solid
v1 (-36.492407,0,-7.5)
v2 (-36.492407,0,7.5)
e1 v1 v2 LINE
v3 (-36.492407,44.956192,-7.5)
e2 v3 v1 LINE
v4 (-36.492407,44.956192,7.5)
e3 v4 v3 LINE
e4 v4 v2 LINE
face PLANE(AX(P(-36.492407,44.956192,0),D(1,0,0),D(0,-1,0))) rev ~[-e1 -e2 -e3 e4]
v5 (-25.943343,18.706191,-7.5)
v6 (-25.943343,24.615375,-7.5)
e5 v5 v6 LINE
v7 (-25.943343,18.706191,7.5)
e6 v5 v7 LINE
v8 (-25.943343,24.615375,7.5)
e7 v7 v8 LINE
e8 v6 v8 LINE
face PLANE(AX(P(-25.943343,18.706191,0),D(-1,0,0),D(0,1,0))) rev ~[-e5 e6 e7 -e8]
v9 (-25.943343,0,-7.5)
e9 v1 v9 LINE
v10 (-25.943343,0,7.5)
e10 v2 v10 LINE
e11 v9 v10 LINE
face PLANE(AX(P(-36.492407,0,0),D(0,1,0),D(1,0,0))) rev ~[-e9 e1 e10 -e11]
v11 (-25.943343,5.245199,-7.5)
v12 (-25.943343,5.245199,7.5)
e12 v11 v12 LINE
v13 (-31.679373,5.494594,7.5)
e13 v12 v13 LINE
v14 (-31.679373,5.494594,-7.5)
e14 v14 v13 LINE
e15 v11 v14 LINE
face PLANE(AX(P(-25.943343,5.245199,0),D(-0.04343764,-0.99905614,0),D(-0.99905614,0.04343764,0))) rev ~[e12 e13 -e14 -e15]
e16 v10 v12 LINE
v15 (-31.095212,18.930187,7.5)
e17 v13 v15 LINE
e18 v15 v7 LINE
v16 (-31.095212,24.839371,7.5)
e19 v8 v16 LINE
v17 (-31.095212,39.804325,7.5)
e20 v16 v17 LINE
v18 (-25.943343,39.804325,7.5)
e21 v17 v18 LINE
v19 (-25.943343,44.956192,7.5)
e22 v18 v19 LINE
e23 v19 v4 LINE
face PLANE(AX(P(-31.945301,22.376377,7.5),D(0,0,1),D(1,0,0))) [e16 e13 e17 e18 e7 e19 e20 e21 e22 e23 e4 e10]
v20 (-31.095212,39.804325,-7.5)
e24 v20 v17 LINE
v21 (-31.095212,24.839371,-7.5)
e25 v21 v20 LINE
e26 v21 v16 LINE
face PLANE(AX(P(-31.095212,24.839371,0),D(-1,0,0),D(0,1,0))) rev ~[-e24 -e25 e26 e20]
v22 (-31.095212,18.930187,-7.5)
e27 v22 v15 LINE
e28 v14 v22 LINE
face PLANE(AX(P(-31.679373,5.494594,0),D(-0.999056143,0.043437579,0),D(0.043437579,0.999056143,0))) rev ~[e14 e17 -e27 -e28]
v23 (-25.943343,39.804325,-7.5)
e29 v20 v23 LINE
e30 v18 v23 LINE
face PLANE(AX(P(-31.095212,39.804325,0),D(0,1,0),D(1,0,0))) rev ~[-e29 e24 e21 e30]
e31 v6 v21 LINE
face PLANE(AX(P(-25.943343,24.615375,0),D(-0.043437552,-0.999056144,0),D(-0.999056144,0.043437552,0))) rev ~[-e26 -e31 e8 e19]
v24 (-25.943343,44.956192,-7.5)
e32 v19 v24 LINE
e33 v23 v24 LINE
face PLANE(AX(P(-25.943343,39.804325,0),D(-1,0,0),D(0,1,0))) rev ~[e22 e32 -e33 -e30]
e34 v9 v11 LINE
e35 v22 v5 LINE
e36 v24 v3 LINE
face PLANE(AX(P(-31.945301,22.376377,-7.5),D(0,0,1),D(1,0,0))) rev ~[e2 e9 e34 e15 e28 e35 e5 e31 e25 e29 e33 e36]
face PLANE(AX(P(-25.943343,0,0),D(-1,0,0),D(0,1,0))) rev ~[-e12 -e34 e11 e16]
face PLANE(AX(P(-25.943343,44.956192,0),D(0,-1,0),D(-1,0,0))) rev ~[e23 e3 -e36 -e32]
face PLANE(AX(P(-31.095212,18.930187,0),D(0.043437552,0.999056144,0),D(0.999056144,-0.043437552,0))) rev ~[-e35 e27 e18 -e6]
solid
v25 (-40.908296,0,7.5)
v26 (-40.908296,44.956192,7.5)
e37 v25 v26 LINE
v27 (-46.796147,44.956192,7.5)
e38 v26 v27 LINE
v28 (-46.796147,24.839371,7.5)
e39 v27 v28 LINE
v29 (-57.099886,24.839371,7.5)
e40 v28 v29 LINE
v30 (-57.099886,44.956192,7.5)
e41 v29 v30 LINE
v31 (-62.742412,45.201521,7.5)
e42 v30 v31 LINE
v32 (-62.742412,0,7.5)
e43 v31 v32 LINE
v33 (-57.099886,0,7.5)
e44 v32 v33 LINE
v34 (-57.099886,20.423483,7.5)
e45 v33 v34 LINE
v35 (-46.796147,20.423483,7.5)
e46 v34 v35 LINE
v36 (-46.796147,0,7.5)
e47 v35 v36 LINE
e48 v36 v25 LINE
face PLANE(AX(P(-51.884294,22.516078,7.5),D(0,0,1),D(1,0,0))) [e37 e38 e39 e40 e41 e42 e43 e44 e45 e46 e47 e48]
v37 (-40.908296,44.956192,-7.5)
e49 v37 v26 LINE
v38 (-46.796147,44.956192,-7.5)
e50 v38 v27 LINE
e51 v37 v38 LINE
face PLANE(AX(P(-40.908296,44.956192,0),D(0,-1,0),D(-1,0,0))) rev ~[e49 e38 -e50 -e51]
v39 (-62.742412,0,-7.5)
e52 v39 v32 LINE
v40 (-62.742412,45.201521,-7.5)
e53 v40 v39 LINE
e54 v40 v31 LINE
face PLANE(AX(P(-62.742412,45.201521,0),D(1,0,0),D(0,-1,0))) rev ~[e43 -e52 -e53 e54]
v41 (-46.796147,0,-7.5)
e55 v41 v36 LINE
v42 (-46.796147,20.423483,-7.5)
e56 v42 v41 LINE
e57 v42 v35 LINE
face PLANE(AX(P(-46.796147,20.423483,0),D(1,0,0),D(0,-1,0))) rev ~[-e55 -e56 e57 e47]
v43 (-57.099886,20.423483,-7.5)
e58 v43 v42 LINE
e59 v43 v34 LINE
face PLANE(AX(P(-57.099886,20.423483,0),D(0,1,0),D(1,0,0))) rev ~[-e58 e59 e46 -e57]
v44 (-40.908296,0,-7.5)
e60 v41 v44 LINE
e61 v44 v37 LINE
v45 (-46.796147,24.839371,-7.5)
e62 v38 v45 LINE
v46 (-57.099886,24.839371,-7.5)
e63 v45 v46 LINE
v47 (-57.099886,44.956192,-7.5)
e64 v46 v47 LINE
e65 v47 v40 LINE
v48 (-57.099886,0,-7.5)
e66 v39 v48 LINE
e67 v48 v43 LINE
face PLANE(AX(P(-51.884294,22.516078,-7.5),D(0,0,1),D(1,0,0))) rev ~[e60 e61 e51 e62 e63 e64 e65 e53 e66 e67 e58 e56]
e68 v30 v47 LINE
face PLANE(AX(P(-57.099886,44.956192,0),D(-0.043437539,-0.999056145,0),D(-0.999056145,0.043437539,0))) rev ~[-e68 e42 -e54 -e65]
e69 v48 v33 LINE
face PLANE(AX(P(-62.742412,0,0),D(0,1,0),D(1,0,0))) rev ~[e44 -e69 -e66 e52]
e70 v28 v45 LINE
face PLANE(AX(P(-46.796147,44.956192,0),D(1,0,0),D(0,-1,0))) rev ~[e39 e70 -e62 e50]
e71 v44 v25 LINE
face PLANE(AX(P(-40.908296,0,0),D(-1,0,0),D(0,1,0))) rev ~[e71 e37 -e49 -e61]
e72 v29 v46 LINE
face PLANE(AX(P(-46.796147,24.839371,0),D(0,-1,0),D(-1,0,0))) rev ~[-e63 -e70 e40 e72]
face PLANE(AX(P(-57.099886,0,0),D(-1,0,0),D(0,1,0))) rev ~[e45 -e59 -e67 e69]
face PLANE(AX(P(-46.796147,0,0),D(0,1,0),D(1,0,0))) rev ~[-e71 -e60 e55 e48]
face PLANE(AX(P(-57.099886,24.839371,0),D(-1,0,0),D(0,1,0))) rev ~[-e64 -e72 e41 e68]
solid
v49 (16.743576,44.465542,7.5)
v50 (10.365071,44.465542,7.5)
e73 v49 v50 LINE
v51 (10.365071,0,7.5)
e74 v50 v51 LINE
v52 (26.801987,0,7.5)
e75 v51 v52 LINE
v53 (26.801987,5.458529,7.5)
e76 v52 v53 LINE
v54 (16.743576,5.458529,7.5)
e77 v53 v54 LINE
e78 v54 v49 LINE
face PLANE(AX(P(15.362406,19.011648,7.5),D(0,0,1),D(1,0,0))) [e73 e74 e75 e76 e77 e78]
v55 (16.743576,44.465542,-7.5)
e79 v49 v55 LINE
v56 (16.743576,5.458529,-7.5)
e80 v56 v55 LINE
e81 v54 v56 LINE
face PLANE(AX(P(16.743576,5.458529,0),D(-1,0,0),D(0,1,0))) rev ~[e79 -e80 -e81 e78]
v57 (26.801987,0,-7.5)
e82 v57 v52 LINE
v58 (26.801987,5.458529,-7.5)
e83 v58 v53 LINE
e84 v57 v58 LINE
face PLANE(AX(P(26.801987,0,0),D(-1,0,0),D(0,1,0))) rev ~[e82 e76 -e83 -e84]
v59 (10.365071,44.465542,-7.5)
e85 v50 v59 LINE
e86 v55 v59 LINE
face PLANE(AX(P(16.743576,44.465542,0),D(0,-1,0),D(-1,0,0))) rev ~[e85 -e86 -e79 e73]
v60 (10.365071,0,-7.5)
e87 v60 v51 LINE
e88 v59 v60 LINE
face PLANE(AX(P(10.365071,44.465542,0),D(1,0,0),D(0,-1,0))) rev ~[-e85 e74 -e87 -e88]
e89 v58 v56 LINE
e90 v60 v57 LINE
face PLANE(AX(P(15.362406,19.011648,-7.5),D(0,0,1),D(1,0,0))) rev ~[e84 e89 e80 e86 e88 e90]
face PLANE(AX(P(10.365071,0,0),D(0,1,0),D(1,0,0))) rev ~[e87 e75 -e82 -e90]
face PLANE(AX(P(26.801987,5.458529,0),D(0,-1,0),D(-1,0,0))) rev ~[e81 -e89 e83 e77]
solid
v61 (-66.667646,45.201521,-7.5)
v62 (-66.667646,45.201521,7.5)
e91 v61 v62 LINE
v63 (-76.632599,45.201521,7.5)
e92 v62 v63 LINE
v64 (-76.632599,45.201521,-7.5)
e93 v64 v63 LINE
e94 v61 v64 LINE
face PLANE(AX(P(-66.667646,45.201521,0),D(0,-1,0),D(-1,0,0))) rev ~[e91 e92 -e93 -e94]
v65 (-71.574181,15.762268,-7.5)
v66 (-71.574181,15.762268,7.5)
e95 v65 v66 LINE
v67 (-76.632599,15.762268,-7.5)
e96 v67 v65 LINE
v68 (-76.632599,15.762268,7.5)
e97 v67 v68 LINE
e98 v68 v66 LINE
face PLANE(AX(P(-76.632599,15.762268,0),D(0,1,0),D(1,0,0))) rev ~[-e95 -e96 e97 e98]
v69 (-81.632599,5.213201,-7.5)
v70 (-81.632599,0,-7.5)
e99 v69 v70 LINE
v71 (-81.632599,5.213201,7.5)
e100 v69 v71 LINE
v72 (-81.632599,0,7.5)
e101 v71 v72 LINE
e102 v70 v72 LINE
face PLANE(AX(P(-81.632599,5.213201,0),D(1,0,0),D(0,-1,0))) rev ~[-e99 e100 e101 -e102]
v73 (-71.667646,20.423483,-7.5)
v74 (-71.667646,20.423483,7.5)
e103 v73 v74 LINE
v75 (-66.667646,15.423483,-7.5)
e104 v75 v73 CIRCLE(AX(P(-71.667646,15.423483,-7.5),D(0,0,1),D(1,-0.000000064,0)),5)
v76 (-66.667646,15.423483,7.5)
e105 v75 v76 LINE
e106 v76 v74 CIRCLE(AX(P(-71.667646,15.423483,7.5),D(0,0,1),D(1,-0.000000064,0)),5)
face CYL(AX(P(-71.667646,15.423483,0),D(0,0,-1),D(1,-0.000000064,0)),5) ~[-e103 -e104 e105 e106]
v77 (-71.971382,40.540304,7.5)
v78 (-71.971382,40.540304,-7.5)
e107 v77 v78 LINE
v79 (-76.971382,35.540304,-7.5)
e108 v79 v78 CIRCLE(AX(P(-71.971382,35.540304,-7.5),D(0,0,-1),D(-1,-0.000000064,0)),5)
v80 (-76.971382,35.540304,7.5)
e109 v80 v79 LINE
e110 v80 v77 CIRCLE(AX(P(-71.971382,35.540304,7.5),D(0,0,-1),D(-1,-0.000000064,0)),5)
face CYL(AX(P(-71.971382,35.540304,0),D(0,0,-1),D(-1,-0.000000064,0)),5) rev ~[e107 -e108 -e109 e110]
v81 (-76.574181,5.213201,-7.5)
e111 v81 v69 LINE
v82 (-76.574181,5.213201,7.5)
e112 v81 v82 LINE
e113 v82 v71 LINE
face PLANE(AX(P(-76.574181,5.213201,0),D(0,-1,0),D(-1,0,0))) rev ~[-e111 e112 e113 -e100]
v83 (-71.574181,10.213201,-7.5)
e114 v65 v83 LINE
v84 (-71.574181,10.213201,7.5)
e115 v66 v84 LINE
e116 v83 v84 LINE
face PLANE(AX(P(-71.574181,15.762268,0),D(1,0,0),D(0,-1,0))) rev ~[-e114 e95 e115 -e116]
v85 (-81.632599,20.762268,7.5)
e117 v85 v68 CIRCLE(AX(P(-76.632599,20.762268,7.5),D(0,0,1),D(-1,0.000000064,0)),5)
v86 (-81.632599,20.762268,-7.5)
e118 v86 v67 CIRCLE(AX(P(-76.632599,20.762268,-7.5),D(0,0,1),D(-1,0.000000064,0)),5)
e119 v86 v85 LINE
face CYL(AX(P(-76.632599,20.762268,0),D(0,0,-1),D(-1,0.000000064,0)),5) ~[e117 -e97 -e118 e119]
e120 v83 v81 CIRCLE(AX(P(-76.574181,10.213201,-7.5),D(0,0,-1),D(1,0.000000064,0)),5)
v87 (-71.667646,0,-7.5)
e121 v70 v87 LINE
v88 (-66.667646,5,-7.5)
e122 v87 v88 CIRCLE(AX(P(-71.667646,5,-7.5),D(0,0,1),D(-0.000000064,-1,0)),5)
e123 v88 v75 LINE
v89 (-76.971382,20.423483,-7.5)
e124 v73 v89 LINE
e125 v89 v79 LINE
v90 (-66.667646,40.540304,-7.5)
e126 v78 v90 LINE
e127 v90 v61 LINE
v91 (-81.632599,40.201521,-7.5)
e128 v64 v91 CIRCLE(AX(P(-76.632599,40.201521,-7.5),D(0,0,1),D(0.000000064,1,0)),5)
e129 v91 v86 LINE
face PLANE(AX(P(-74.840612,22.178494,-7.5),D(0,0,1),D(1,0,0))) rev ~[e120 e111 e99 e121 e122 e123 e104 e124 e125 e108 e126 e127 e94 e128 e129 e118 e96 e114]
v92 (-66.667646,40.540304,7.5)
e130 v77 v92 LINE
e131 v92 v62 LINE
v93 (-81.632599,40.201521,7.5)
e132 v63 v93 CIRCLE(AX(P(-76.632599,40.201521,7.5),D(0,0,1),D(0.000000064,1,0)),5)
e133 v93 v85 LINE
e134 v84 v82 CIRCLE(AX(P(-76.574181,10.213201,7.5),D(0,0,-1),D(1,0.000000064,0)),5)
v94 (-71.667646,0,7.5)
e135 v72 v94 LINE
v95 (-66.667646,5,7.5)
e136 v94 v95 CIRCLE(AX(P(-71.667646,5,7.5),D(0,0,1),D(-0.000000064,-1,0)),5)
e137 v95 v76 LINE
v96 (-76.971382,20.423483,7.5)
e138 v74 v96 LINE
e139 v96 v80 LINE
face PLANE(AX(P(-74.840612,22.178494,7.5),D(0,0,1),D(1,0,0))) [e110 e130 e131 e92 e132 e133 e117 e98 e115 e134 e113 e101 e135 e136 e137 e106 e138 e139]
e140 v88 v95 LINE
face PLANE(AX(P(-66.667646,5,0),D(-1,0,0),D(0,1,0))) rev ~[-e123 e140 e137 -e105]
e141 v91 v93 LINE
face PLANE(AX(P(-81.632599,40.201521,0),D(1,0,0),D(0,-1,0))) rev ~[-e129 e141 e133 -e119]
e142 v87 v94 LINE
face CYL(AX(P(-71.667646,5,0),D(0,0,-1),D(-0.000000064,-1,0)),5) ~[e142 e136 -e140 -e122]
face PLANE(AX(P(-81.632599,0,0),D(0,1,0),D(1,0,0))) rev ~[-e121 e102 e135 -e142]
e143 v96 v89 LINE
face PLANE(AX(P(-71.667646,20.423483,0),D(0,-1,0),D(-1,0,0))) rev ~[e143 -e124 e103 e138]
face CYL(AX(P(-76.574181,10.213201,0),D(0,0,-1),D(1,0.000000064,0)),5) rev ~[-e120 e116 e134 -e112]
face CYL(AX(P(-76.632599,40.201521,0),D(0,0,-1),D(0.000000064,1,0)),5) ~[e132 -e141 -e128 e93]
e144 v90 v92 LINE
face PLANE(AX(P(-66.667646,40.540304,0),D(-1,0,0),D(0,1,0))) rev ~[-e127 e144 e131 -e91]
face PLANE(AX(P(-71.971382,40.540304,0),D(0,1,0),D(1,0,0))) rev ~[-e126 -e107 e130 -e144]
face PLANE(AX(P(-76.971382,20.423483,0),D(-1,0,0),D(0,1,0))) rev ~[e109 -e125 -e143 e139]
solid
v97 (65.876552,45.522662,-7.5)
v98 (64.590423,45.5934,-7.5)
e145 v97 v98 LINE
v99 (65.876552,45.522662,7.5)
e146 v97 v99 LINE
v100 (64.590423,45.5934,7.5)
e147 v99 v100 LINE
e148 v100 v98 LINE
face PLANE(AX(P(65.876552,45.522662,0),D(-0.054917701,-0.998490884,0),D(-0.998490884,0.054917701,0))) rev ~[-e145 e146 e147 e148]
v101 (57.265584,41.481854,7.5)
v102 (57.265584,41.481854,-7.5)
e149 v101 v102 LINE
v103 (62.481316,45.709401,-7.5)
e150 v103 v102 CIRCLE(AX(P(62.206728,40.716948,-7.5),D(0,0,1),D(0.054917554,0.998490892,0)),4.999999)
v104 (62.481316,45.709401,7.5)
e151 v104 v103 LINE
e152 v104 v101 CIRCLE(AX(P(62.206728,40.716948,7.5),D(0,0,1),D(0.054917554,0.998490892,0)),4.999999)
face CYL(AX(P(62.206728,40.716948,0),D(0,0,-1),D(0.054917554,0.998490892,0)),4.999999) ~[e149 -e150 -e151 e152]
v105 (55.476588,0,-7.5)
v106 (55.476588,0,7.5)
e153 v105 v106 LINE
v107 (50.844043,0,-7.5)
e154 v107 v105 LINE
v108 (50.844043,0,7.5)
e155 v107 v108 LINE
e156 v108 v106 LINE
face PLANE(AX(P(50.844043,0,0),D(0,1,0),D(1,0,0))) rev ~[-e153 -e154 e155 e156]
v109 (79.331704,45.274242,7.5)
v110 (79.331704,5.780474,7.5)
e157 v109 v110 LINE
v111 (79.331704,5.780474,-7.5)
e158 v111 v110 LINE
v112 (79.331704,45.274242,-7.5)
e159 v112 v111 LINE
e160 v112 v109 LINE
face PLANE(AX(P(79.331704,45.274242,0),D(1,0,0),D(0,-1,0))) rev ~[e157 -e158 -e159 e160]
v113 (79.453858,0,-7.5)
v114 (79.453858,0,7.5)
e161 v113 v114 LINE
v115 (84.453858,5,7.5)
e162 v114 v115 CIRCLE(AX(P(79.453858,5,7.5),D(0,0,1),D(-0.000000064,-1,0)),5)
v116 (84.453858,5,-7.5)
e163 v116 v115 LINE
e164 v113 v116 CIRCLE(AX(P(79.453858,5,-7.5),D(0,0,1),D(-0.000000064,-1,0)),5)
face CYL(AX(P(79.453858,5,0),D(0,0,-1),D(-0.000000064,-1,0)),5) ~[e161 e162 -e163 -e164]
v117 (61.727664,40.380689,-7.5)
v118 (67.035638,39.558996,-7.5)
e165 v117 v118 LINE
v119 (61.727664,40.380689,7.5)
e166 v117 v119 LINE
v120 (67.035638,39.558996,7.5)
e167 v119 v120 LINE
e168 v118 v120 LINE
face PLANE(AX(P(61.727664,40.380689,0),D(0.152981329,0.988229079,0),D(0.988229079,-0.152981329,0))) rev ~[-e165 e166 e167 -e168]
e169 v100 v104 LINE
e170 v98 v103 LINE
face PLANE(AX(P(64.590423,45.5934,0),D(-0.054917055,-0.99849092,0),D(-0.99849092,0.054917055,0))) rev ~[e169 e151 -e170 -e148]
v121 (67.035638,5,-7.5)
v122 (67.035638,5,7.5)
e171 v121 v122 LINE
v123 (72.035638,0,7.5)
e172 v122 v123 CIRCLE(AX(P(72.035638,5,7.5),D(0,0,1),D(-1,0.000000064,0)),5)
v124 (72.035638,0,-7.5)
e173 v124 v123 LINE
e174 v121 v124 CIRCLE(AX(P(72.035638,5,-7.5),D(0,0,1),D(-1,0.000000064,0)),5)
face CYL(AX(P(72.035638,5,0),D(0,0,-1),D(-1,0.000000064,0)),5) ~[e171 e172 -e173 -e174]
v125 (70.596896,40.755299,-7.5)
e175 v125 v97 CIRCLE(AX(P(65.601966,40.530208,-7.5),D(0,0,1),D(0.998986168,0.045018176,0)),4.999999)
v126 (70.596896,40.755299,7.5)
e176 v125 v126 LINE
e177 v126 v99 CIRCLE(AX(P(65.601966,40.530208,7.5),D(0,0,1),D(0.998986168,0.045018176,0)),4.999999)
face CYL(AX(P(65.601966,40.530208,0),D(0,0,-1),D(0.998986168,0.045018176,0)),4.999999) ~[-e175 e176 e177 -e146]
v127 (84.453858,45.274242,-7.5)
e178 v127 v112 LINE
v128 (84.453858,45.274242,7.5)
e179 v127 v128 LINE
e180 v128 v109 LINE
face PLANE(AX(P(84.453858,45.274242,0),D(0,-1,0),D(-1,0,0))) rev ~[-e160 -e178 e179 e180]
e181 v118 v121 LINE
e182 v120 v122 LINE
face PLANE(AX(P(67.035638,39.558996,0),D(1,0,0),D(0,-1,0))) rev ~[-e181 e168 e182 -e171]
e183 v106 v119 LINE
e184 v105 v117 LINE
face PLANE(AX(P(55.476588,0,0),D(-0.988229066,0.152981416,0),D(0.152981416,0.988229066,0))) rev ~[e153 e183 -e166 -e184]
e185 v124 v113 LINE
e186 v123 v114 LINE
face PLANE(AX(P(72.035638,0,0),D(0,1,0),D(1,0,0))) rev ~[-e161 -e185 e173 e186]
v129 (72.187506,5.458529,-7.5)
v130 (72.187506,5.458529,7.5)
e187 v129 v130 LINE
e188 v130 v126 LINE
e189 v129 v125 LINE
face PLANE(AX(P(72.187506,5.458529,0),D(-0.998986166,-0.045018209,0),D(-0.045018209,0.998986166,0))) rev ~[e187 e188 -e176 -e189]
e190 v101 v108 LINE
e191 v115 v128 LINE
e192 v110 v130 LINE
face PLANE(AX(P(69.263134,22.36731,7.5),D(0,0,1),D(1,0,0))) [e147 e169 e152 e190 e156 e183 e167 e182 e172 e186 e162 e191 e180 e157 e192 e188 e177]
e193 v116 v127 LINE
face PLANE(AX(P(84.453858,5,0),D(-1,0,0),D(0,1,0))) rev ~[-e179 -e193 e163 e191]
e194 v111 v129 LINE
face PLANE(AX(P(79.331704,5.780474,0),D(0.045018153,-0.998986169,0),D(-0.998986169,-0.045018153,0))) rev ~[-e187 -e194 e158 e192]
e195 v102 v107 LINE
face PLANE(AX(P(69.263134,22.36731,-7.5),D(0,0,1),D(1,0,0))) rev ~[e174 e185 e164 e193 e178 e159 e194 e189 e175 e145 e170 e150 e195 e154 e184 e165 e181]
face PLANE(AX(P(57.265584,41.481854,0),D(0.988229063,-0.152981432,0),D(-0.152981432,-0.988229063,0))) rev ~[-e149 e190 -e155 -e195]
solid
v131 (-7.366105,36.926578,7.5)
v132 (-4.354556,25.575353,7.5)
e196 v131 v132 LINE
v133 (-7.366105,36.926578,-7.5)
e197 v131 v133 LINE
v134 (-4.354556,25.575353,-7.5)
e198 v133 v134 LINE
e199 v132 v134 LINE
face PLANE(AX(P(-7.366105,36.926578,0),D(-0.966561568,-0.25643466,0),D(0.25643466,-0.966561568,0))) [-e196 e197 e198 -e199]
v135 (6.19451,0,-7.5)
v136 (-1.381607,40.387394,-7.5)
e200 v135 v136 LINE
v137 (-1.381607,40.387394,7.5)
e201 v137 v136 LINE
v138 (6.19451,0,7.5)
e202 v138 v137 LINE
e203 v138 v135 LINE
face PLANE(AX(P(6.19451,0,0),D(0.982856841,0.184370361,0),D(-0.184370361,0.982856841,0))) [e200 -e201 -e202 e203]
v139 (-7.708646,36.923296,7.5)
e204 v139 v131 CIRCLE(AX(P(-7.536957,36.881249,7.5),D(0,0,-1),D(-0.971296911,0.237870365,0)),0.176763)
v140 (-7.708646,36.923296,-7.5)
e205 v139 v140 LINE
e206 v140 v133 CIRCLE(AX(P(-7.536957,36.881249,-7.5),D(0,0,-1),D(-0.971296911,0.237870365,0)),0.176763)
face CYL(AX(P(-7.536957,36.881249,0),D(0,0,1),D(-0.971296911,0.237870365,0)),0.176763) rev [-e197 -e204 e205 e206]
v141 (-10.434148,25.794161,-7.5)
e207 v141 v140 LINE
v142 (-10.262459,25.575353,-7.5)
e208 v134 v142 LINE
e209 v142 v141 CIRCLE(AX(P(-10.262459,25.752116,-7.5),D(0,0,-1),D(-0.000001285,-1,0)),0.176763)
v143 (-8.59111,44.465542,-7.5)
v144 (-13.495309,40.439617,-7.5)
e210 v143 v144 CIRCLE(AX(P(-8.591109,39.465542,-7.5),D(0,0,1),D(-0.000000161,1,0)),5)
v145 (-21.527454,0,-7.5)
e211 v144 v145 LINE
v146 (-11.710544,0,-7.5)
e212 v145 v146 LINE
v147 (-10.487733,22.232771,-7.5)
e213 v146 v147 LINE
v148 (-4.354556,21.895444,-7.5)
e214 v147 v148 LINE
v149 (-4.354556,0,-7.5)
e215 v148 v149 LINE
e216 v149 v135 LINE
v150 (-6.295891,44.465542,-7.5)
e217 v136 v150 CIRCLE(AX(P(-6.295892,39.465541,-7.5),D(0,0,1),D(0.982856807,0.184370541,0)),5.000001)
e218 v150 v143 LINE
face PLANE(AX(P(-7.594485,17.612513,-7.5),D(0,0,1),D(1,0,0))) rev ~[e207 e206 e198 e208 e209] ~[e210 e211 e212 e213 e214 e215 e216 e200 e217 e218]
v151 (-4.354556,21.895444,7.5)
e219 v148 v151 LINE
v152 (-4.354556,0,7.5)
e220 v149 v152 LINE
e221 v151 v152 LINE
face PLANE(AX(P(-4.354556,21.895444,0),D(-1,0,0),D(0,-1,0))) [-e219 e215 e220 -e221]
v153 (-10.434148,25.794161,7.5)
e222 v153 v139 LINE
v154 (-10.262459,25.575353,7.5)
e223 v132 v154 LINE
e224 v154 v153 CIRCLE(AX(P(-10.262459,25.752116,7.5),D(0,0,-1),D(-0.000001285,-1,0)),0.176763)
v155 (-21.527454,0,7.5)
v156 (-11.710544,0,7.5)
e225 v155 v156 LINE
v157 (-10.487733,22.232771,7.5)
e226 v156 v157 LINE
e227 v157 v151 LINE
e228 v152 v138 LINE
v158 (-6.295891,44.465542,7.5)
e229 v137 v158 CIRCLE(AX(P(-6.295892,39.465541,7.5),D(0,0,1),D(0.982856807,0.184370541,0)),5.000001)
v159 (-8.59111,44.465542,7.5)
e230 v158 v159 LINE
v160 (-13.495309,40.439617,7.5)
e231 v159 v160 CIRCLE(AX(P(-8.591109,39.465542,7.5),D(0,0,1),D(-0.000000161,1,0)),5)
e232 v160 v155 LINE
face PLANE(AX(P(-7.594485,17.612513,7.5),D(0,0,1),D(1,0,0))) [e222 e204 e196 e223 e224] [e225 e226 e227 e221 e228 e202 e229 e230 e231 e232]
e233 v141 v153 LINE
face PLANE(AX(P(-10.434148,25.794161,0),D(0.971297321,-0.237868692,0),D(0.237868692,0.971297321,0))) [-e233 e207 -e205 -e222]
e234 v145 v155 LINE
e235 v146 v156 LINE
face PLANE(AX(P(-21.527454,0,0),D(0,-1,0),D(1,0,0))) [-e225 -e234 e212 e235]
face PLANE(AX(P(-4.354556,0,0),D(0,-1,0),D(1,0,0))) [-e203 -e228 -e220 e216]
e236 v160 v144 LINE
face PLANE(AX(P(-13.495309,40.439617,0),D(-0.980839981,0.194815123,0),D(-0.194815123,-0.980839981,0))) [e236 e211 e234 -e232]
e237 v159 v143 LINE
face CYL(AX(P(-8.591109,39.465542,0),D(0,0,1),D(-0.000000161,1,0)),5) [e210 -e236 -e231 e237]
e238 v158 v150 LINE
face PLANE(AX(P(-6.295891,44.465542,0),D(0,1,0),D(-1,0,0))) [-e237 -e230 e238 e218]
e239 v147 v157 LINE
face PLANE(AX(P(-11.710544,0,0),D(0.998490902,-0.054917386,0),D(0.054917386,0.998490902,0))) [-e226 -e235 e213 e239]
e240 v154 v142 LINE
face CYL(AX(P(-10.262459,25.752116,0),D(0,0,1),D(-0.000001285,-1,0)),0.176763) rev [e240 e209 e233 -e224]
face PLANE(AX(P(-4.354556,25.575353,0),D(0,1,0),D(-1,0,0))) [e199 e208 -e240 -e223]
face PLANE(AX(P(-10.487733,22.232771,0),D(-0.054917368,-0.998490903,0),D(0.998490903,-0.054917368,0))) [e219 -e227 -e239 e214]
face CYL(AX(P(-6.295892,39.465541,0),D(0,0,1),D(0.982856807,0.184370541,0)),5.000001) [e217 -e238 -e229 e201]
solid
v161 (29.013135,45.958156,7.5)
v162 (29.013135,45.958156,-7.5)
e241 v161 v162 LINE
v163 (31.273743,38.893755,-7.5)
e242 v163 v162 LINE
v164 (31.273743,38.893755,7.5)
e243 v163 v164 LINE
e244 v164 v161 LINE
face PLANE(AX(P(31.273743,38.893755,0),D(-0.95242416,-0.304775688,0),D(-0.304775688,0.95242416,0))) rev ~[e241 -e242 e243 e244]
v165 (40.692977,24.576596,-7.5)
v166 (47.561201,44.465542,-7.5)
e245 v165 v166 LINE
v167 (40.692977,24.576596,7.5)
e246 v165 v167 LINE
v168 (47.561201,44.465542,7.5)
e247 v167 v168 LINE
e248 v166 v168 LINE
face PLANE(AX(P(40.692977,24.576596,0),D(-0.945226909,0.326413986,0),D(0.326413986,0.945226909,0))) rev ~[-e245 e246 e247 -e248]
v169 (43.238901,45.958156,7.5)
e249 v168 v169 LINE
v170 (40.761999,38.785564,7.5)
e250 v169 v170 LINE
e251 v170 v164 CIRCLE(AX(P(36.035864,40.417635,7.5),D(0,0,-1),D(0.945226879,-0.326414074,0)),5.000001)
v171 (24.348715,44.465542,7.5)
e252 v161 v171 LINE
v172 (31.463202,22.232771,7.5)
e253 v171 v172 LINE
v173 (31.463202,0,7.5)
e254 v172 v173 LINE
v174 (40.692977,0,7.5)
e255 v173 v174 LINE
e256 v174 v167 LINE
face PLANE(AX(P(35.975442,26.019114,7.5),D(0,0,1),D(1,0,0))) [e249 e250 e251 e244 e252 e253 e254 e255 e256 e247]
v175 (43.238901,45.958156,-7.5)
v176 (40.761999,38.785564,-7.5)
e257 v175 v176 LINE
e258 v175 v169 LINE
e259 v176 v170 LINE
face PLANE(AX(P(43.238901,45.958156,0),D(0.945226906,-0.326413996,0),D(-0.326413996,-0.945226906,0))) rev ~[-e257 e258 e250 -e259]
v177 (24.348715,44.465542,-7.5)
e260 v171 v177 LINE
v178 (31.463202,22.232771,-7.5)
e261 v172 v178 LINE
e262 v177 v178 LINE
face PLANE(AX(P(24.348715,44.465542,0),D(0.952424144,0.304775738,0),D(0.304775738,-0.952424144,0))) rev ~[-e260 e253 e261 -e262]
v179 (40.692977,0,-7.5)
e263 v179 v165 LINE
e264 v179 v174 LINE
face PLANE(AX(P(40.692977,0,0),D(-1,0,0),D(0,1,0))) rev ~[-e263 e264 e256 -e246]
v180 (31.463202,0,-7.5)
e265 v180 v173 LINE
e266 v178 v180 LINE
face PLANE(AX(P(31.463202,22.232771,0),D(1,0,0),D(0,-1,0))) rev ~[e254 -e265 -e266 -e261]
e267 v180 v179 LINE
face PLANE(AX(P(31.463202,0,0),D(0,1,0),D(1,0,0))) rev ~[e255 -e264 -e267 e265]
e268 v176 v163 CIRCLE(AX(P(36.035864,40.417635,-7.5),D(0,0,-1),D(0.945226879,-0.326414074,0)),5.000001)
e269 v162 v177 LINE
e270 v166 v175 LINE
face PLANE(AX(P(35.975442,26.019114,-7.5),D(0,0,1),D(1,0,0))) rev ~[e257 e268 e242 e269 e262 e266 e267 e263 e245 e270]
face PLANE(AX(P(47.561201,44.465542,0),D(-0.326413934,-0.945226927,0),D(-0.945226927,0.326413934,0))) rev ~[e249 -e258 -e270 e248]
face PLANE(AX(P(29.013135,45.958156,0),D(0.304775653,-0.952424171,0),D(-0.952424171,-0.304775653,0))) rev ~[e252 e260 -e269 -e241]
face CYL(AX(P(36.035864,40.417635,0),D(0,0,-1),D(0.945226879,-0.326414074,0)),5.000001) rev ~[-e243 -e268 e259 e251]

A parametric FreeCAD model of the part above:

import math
import FreeCAD as App
import Part
import Sketcher
from FreeCAD import Vector


def add_polygon(sketch, points):
    """Adds a closed chain of lines whose ends are joined by coincident constraints."""
    first, n = sketch.GeometryCount, len(points)
    for a, b in zip(points, points[1:] + points[:1]):
        sketch.addGeometry(Part.LineSegment(App.Vector(*a, 0), App.Vector(*b, 0)), False)
    for i in range(n):
        sketch.addConstraint(Sketcher.Constraint("Coincident", first + i, 2, first + (i + 1) % n, 1))

doc = App.newDocument("Part")
body = doc.addObject("PartDesign::Body", "Body")
body.AllowCompound = True

sketch1 = doc.addObject("Sketcher::SketchObject", "Sketch")
body.addObject(sketch1)
sketch1.AttachmentSupport = (doc.XY_Plane, [""])
sketch1.MapMode = "FlatFace"
sketch1.addGeometry(Part.LineSegment(Vector(-71.971382, 40.540304, 0), Vector(-66.667646, 40.540304, 0)), False)
sketch1.addGeometry(Part.LineSegment(Vector(-66.667646, 40.540304, 0), Vector(-66.667646, 45.201521, 0)), False)
sketch1.addGeometry(Part.LineSegment(Vector(-66.667646, 45.201521, 0), Vector(-76.632599, 45.201521, 0)), False)
sketch1.addGeometry(Part.ArcOfCircle(Part.Circle(Vector(-76.632599, 40.201521, 0), Vector(0, 0, 1), 5), math.radians(89.999996), math.radians(180.000004)), False)
sketch1.addGeometry(Part.LineSegment(Vector(-81.632599, 40.201521, 0), Vector(-81.632599, 20.762268, 0)), False)
sketch1.addGeometry(Part.ArcOfCircle(Part.Circle(Vector(-76.632599, 20.762268, 0), Vector(0, 0, 1), 5), math.radians(179.999996), math.radians(270.000004)), False)
sketch1.addGeometry(Part.LineSegment(Vector(-76.632599, 15.762268, 0), Vector(-71.574181, 15.762268, 0)), False)
sketch1.addGeometry(Part.LineSegment(Vector(-71.574181, 15.762268, 0), Vector(-71.574181, 10.213201, 0)), False)
sketch1.addGeometry(Part.ArcOfCircle(Part.Circle(Vector(-76.574181, 10.213201, 0), Vector(0, 0, 1), 5), math.radians(-90.000004), math.radians(0.000004)), False)
sketch1.addGeometry(Part.LineSegment(Vector(-76.574181, 5.213201, 0), Vector(-81.632599, 5.213201, 0)), False)
sketch1.addGeometry(Part.LineSegment(Vector(-81.632599, 5.213201, 0), Vector(-81.632599, 0, 0)), False)
sketch1.addGeometry(Part.LineSegment(Vector(-81.632599, 0, 0), Vector(-71.667646, 0, 0)), False)
sketch1.addGeometry(Part.ArcOfCircle(Part.Circle(Vector(-71.667646, 5, 0), Vector(0, 0, 1), 5), math.radians(-90.000004), math.radians(0.000004)), False)
sketch1.addGeometry(Part.LineSegment(Vector(-66.667646, 5, 0), Vector(-66.667646, 15.423483, 0)), False)
sketch1.addGeometry(Part.ArcOfCircle(Part.Circle(Vector(-71.667646, 15.423483, 0), Vector(0, 0, 1), 5), math.radians(-0.000004), math.radians(90.000004)), False)
sketch1.addGeometry(Part.LineSegment(Vector(-71.667646, 20.423483, 0), Vector(-76.971382, 20.423483, 0)), False)
sketch1.addGeometry(Part.LineSegment(Vector(-76.971382, 20.423483, 0), Vector(-76.971382, 35.540304, 0)), False)
sketch1.addGeometry(Part.ArcOfCircle(Part.Circle(Vector(-71.971382, 35.540304, 0), Vector(0, 0, 1), 5), math.radians(89.999996), math.radians(180.000004)), False)
add_polygon(sketch1, [(-57.099886, 44.956192), (-62.742412, 45.201521), (-62.742412, 0), (-57.099886, 0), (-57.099886, 20.423483), (-46.796147, 20.423483), (-46.796147, 0), (-40.908296, 0), (-40.908296, 44.956192), (-46.796147, 44.956192), (-46.796147, 24.839371), (-57.099886, 24.839371)])
add_polygon(sketch1, [(-36.492407, 44.956192), (-36.492407, 0), (-25.943343, 0), (-25.943343, 5.245199), (-31.679373, 5.494594), (-31.095212, 18.930187), (-25.943343, 18.706191), (-25.943343, 24.615375), (-31.095212, 24.839371), (-31.095212, 39.804325), (-25.943343, 39.804325), (-25.943343, 44.956192)])
add_polygon(sketch1, [(10.365071, 44.465542), (10.365071, 0), (26.801987, 0), (26.801987, 5.458529), (16.743576, 5.458529), (16.743576, 44.465542)])
sketch1.addGeometry(Part.LineSegment(Vector(31.463202, 22.232771, 0), Vector(31.463202, 0, 0)), False)
sketch1.addGeometry(Part.LineSegment(Vector(31.463202, 0, 0), Vector(40.692977, 0, 0)), False)
sketch1.addGeometry(Part.LineSegment(Vector(40.692977, 0, 0), Vector(40.692977, 24.576596, 0)), False)
sketch1.addGeometry(Part.LineSegment(Vector(40.692977, 24.576596, 0), Vector(47.561201, 44.465542, 0)), False)
sketch1.addGeometry(Part.LineSegment(Vector(47.561201, 44.465542, 0), Vector(43.238901, 45.958156, 0)), False)
sketch1.addGeometry(Part.LineSegment(Vector(43.238901, 45.958156, 0), Vector(40.761999, 38.785564, 0)), False)
sketch1.addGeometry(Part.ArcOfCircle(Part.Circle(Vector(36.035864, 40.417635, 0), Vector(0, 0, 1), 5.000001), math.radians(-162.255319), math.radians(-19.051268)), False)
sketch1.addGeometry(Part.LineSegment(Vector(31.273743, 38.893755, 0), Vector(29.013135, 45.958156, 0)), False)
sketch1.addGeometry(Part.LineSegment(Vector(29.013135, 45.958156, 0), Vector(24.348715, 44.465542, 0)), False)
sketch1.addGeometry(Part.LineSegment(Vector(24.348715, 44.465542, 0), Vector(31.463202, 22.232771, 0)), False)
sketch1.addGeometry(Part.LineSegment(Vector(57.265584, 41.481854, 0), Vector(50.844043, 0, 0)), False)
sketch1.addGeometry(Part.LineSegment(Vector(50.844043, 0, 0), Vector(55.476588, 0, 0)), False)
sketch1.addGeometry(Part.LineSegment(Vector(55.476588, 0, 0), Vector(61.727664, 40.380689, 0)), False)
sketch1.addGeometry(Part.LineSegment(Vector(61.727664, 40.380689, 0), Vector(67.035638, 39.558996, 0)), False)
sketch1.addGeometry(Part.LineSegment(Vector(67.035638, 39.558996, 0), Vector(67.035638, 5, 0)), False)
sketch1.addGeometry(Part.ArcOfCircle(Part.Circle(Vector(72.035638, 5, 0), Vector(0, 0, 1), 5), math.radians(179.999996), math.radians(270.000004)), False)
sketch1.addGeometry(Part.LineSegment(Vector(72.035638, 0, 0), Vector(79.453858, 0, 0)), False)
sketch1.addGeometry(Part.ArcOfCircle(Part.Circle(Vector(79.453858, 5, 0), Vector(0, 0, 1), 5), math.radians(-90.000004), math.radians(0.000004)), False)
sketch1.addGeometry(Part.LineSegment(Vector(84.453858, 5, 0), Vector(84.453858, 45.274242, 0)), False)
sketch1.addGeometry(Part.LineSegment(Vector(84.453858, 45.274242, 0), Vector(79.331704, 45.274242, 0)), False)
sketch1.addGeometry(Part.LineSegment(Vector(79.331704, 45.274242, 0), Vector(79.331704, 5.780474, 0)), False)
sketch1.addGeometry(Part.LineSegment(Vector(79.331704, 5.780474, 0), Vector(72.187506, 5.458529, 0)), False)
sketch1.addGeometry(Part.LineSegment(Vector(72.187506, 5.458529, 0), Vector(70.596896, 40.755299, 0)), False)
sketch1.addGeometry(Part.ArcOfCircle(Part.Circle(Vector(65.601966, 40.530208, 0), Vector(0, 0, 1), 4.999999), math.radians(2.580224), math.radians(86.85189)), False)
sketch1.addGeometry(Part.LineSegment(Vector(65.876552, 45.522662, 0), Vector(64.590423, 45.5934, 0)), False)
sketch1.addGeometry(Part.LineSegment(Vector(64.590423, 45.5934, 0), Vector(62.481316, 45.709401, 0)), False)
sketch1.addGeometry(Part.ArcOfCircle(Part.Circle(Vector(62.206728, 40.716948, 0), Vector(0, 0, 1), 4.999999), math.radians(86.851872), math.radians(171.200263)), False)
sketch1.addGeometry(Part.LineSegment(Vector(-13.495309, 40.439617, 0), Vector(-21.527454, 0, 0)), False)
sketch1.addGeometry(Part.LineSegment(Vector(-21.527454, 0, 0), Vector(-11.710544, 0, 0)), False)
sketch1.addGeometry(Part.LineSegment(Vector(-11.710544, 0, 0), Vector(-10.487733, 22.232771, 0)), False)
sketch1.addGeometry(Part.LineSegment(Vector(-10.487733, 22.232771, 0), Vector(-4.354556, 21.895444, 0)), False)
sketch1.addGeometry(Part.LineSegment(Vector(-4.354556, 21.895444, 0), Vector(-4.354556, 0, 0)), False)
sketch1.addGeometry(Part.LineSegment(Vector(-4.354556, 0, 0), Vector(6.19451, 0, 0)), False)
sketch1.addGeometry(Part.LineSegment(Vector(6.19451, 0, 0), Vector(-1.381607, 40.387394, 0)), False)
sketch1.addGeometry(Part.ArcOfCircle(Part.Circle(Vector(-6.295892, 39.465541, 0), Vector(0, 0, 1), 5.000001), math.radians(10.624436), math.radians(89.99999)), False)
sketch1.addGeometry(Part.LineSegment(Vector(-6.295891, 44.465542, 0), Vector(-8.59111, 44.465542, 0)), False)
sketch1.addGeometry(Part.ArcOfCircle(Part.Circle(Vector(-8.591109, 39.465542, 0), Vector(0, 0, 1), 5), math.radians(90.000009), math.radians(168.766086)), False)
sketch1.addGeometry(Part.ArcOfCircle(Part.Circle(Vector(-10.262459, 25.752116, 0), Vector(0, 0, 1), 0.176763), math.radians(166.239504), math.radians(269.999926)), False)
sketch1.addGeometry(Part.LineSegment(Vector(-10.434148, 25.794161, 0), Vector(-7.708646, 36.923296, 0)), False)
sketch1.addGeometry(Part.ArcOfCircle(Part.Circle(Vector(-7.536957, 36.881249, 0), Vector(0, 0, 1), 0.176763), math.radians(14.858788), math.radians(166.239118)), False)
sketch1.addGeometry(Part.LineSegment(Vector(-7.366105, 36.926578, 0), Vector(-4.354556, 25.575353, 0)), False)
sketch1.addGeometry(Part.LineSegment(Vector(-4.354556, 25.575353, 0), Vector(-10.262459, 25.575353, 0)), False)
sketch1.addConstraint(Sketcher.Constraint("Coincident", 0, 2, 1, 1))
sketch1.addConstraint(Sketcher.Constraint("Coincident", 1, 2, 2, 1))
sketch1.addConstraint(Sketcher.Constraint("Coincident", 2, 2, 3, 1))
sketch1.addConstraint(Sketcher.Constraint("Coincident", 3, 2, 4, 1))
sketch1.addConstraint(Sketcher.Constraint("Coincident", 4, 2, 5, 1))
sketch1.addConstraint(Sketcher.Constraint("Coincident", 5, 2, 6, 1))
sketch1.addConstraint(Sketcher.Constraint("Coincident", 6, 2, 7, 1))
sketch1.addConstraint(Sketcher.Constraint("Coincident", 7, 2, 8, 2))
sketch1.addConstraint(Sketcher.Constraint("Coincident", 8, 1, 9, 1))
sketch1.addConstraint(Sketcher.Constraint("Coincident", 9, 2, 10, 1))
sketch1.addConstraint(Sketcher.Constraint("Coincident", 10, 2, 11, 1))
sketch1.addConstraint(Sketcher.Constraint("Coincident", 11, 2, 12, 1))
sketch1.addConstraint(Sketcher.Constraint("Coincident", 12, 2, 13, 1))
sketch1.addConstraint(Sketcher.Constraint("Coincident", 13, 2, 14, 1))
sketch1.addConstraint(Sketcher.Constraint("Coincident", 14, 2, 15, 1))
sketch1.addConstraint(Sketcher.Constraint("Coincident", 15, 2, 16, 1))
sketch1.addConstraint(Sketcher.Constraint("Coincident", 16, 2, 17, 2))
sketch1.addConstraint(Sketcher.Constraint("Coincident", 17, 1, 0, 1))
sketch1.addConstraint(Sketcher.Constraint("Coincident", 48, 2, 49, 1))
sketch1.addConstraint(Sketcher.Constraint("Coincident", 49, 2, 50, 1))
sketch1.addConstraint(Sketcher.Constraint("Coincident", 50, 2, 51, 1))
sketch1.addConstraint(Sketcher.Constraint("Coincident", 51, 2, 52, 1))
sketch1.addConstraint(Sketcher.Constraint("Coincident", 52, 2, 53, 1))
sketch1.addConstraint(Sketcher.Constraint("Coincident", 53, 2, 54, 2))
sketch1.addConstraint(Sketcher.Constraint("Coincident", 54, 1, 55, 1))
sketch1.addConstraint(Sketcher.Constraint("Coincident", 55, 2, 56, 1))
sketch1.addConstraint(Sketcher.Constraint("Coincident", 56, 2, 57, 1))
sketch1.addConstraint(Sketcher.Constraint("Coincident", 57, 2, 48, 1))
sketch1.addConstraint(Sketcher.Constraint("Coincident", 58, 2, 59, 1))
sketch1.addConstraint(Sketcher.Constraint("Coincident", 59, 2, 60, 1))
sketch1.addConstraint(Sketcher.Constraint("Coincident", 60, 2, 61, 1))
sketch1.addConstraint(Sketcher.Constraint("Coincident", 61, 2, 62, 1))
sketch1.addConstraint(Sketcher.Constraint("Coincident", 62, 2, 63, 1))
sketch1.addConstraint(Sketcher.Constraint("Coincident", 63, 2, 64, 1))
sketch1.addConstraint(Sketcher.Constraint("Coincident", 64, 2, 65, 1))
sketch1.addConstraint(Sketcher.Constraint("Coincident", 65, 2, 66, 1))
sketch1.addConstraint(Sketcher.Constraint("Coincident", 66, 2, 67, 1))
sketch1.addConstraint(Sketcher.Constraint("Coincident", 67, 2, 68, 1))
sketch1.addConstraint(Sketcher.Constraint("Coincident", 68, 2, 69, 1))
sketch1.addConstraint(Sketcher.Constraint("Coincident", 69, 2, 70, 1))
sketch1.addConstraint(Sketcher.Constraint("Coincident", 70, 2, 71, 1))
sketch1.addConstraint(Sketcher.Constraint("Coincident", 71, 2, 72, 1))
sketch1.addConstraint(Sketcher.Constraint("Coincident", 72, 2, 73, 1))
sketch1.addConstraint(Sketcher.Constraint("Coincident", 73, 2, 74, 1))
sketch1.addConstraint(Sketcher.Constraint("Coincident", 74, 2, 58, 1))
sketch1.addConstraint(Sketcher.Constraint("Coincident", 75, 2, 76, 1))
sketch1.addConstraint(Sketcher.Constraint("Coincident", 76, 2, 77, 1))
sketch1.addConstraint(Sketcher.Constraint("Coincident", 77, 2, 78, 1))
sketch1.addConstraint(Sketcher.Constraint("Coincident", 78, 2, 79, 1))
sketch1.addConstraint(Sketcher.Constraint("Coincident", 79, 2, 80, 1))
sketch1.addConstraint(Sketcher.Constraint("Coincident", 80, 2, 81, 1))
sketch1.addConstraint(Sketcher.Constraint("Coincident", 81, 2, 82, 1))
sketch1.addConstraint(Sketcher.Constraint("Coincident", 82, 2, 83, 1))
sketch1.addConstraint(Sketcher.Constraint("Coincident", 83, 2, 84, 1))
sketch1.addConstraint(Sketcher.Constraint("Coincident", 84, 2, 75, 1))
sketch1.addConstraint(Sketcher.Constraint("Coincident", 85, 1, 86, 1))
sketch1.addConstraint(Sketcher.Constraint("Coincident", 86, 2, 87, 2))
sketch1.addConstraint(Sketcher.Constraint("Coincident", 87, 1, 88, 1))
sketch1.addConstraint(Sketcher.Constraint("Coincident", 88, 2, 89, 1))
sketch1.addConstraint(Sketcher.Constraint("Coincident", 89, 2, 85, 2))
sketch1.addConstraint(Sketcher.Constraint("Horizontal", 0))
sketch1.addConstraint(Sketcher.Constraint("Vertical", 1))
sketch1.addConstraint(Sketcher.Constraint("Horizontal", 2))
sketch1.addConstraint(Sketcher.Constraint("Vertical", 4))
sketch1.addConstraint(Sketcher.Constraint("Horizontal", 6))
sketch1.addConstraint(Sketcher.Constraint("Vertical", 7))
sketch1.addConstraint(Sketcher.Constraint("Horizontal", 9))
sketch1.addConstraint(Sketcher.Constraint("Vertical", 10))
sketch1.addConstraint(Sketcher.Constraint("Horizontal", 11))
sketch1.addConstraint(Sketcher.Constraint("Vertical", 13))
sketch1.addConstraint(Sketcher.Constraint("Horizontal", 15))
sketch1.addConstraint(Sketcher.Constraint("Vertical", 16))
sketch1.addConstraint(Sketcher.Constraint("Vertical", 19))
sketch1.addConstraint(Sketcher.Constraint("Horizontal", 20))
sketch1.addConstraint(Sketcher.Constraint("Vertical", 21))
sketch1.addConstraint(Sketcher.Constraint("Horizontal", 22))
sketch1.addConstraint(Sketcher.Constraint("Vertical", 23))
sketch1.addConstraint(Sketcher.Constraint("Horizontal", 24))
sketch1.addConstraint(Sketcher.Constraint("Vertical", 25))
sketch1.addConstraint(Sketcher.Constraint("Horizontal", 26))
sketch1.addConstraint(Sketcher.Constraint("Vertical", 27))
sketch1.addConstraint(Sketcher.Constraint("Horizontal", 28))
sketch1.addConstraint(Sketcher.Constraint("Vertical", 29))
sketch1.addConstraint(Sketcher.Constraint("Vertical", 30))
sketch1.addConstraint(Sketcher.Constraint("Horizontal", 31))
sketch1.addConstraint(Sketcher.Constraint("Vertical", 32))
sketch1.addConstraint(Sketcher.Constraint("Vertical", 36))
sketch1.addConstraint(Sketcher.Constraint("Vertical", 38))
sketch1.addConstraint(Sketcher.Constraint("Horizontal", 39))
sketch1.addConstraint(Sketcher.Constraint("Vertical", 40))
sketch1.addConstraint(Sketcher.Constraint("Horizontal", 41))
sketch1.addConstraint(Sketcher.Constraint("Vertical", 42))
sketch1.addConstraint(Sketcher.Constraint("Horizontal", 43))
sketch1.addConstraint(Sketcher.Constraint("Vertical", 44))
sketch1.addConstraint(Sketcher.Constraint("Horizontal", 45))
sketch1.addConstraint(Sketcher.Constraint("Vertical", 46))
sketch1.addConstraint(Sketcher.Constraint("Horizontal", 47))
sketch1.addConstraint(Sketcher.Constraint("Vertical", 48))
sketch1.addConstraint(Sketcher.Constraint("Horizontal", 49))
sketch1.addConstraint(Sketcher.Constraint("Vertical", 50))
sketch1.addConstraint(Sketcher.Constraint("Horizontal", 59))
sketch1.addConstraint(Sketcher.Constraint("Vertical", 62))
sketch1.addConstraint(Sketcher.Constraint("Horizontal", 64))
sketch1.addConstraint(Sketcher.Constraint("Vertical", 66))
sketch1.addConstraint(Sketcher.Constraint("Horizontal", 67))
sketch1.addConstraint(Sketcher.Constraint("Vertical", 68))
sketch1.addConstraint(Sketcher.Constraint("Horizontal", 76))
sketch1.addConstraint(Sketcher.Constraint("Vertical", 79))
sketch1.addConstraint(Sketcher.Constraint("Horizontal", 80))
sketch1.addConstraint(Sketcher.Constraint("Horizontal", 83))
sketch1.addConstraint(Sketcher.Constraint("Horizontal", 89))
sketch1.addConstraint(Sketcher.Constraint("PointOnObject", 10, 2, -1))
sketch1.addConstraint(Sketcher.Constraint("PointOnObject", 19, 2, -1))
sketch1.addConstraint(Sketcher.Constraint("PointOnObject", 23, 2, -1))
sketch1.addConstraint(Sketcher.Constraint("PointOnObject", 30, 2, -1))
sketch1.addConstraint(Sketcher.Constraint("PointOnObject", 42, 2, -1))
sketch1.addConstraint(Sketcher.Constraint("PointOnObject", 48, 2, -1))
sketch1.addConstraint(Sketcher.Constraint("PointOnObject", 58, 2, -1))
sketch1.addConstraint(Sketcher.Constraint("PointOnObject", 63, 2, -1))
sketch1.addConstraint(Sketcher.Constraint("PointOnObject", 75, 2, -1))
sketch1.addConstraint(Sketcher.Constraint("PointOnObject", 79, 2, -1))
sketch1.addConstraint(Sketcher.Constraint("Radius", 3, 5.0))
sketch1.addConstraint(Sketcher.Constraint("Radius", 5, 5.0))
sketch1.addConstraint(Sketcher.Constraint("Radius", 8, 5.0))
sketch1.addConstraint(Sketcher.Constraint("Radius", 12, 5.0))
sketch1.addConstraint(Sketcher.Constraint("Radius", 14, 5.0))
sketch1.addConstraint(Sketcher.Constraint("Radius", 17, 5.0))
sketch1.addConstraint(Sketcher.Constraint("Radius", 54, 5.000001))
sketch1.addConstraint(Sketcher.Constraint("Radius", 63, 5.0))
sketch1.addConstraint(Sketcher.Constraint("Radius", 65, 5.0))
sketch1.addConstraint(Sketcher.Constraint("Radius", 71, 4.999999))
sketch1.addConstraint(Sketcher.Constraint("Radius", 74, 4.999999))
sketch1.addConstraint(Sketcher.Constraint("Radius", 82, 5.000001))
sketch1.addConstraint(Sketcher.Constraint("Radius", 84, 5.0))
sketch1.addConstraint(Sketcher.Constraint("DistanceY", -1, 1, 12, 2, 5.0))
sketch1.addConstraint(Sketcher.Constraint("DistanceY", -1, 1, 62, 2, 5.0))
sketch1.addConstraint(Sketcher.Constraint("DistanceY", -1, 1, 65, 2, 5.0))
sketch1.addConstraint(Sketcher.Constraint("DistanceY", 10, 2, 10, 1, 5.213201))
sketch1.addConstraint(Sketcher.Constraint("DistanceY", 32, 1, 32, 2, 5.245199))
sketch1.addConstraint(Sketcher.Constraint("DistanceX", -1, 1, 53, 2, 40.761999))
sketch1.addConstraint(Sketcher.Constraint("Radius", 85, 0.176763))
sketch1.addConstraint(Sketcher.Constraint("Radius", 87, 0.176763))
sketch1.addConstraint(Sketcher.Constraint("DistanceX", 6, 1, 6, 2, 5.058418))
sketch1.addConstraint(Sketcher.Constraint("DistanceX", 9, 2, 9, 1, 5.058418))
sketch1.addConstraint(Sketcher.Constraint("DistanceX", 22, 1, 22, 2, 10.303739))
sketch1.addConstraint(Sketcher.Constraint("DistanceX", 24, 1, 24, 2, 5.887851))
sketch1.addConstraint(Sketcher.Constraint("DistanceX", 26, 2, 26, 1, 5.887851))
sketch1.addConstraint(Sketcher.Constraint("DistanceX", 28, 2, 28, 1, 10.303739))
sketch1.addConstraint(Sketcher.Constraint("DistanceX", 39, 1, 39, 2, 5.151869))
sketch1.addConstraint(Sketcher.Constraint("DistanceX", 45, 2, 45, 1, 10.058411))
sketch1.addConstraint(Sketcher.Constraint("DistanceX", 64, 1, 64, 2, 7.41822))
sketch1.addConstraint(Sketcher.Constraint("DistanceX", 76, 1, 76, 2, 9.81691))
sketch1.addConstraint(Sketcher.Constraint("DistanceX", 83, 2, 83, 1, 2.295219))
sketch1.addConstraint(Sketcher.Constraint("DistanceY", 16, 1, 16, 2, 15.116821))
sketch1.addConstraint(Sketcher.Constraint("DistanceY", 19, 2, 19, 1, 45.201521))
sketch1.addConstraint(Sketcher.Constraint("DistanceY", 27, 2, 27, 1, 20.116821))
sketch1.addConstraint(Sketcher.Constraint("DistanceY", 29, 1, 29, 2, 20.116821))
sketch1.addConstraint(Sketcher.Constraint("DistanceY", 44, 1, 44, 2, 5.458529))
sketch1.addConstraint(Sketcher.Constraint("DistanceY", 48, 2, 48, 1, 22.232771))
sketch1.addConstraint(Sketcher.Constraint("DistanceY", 68, 2, 68, 1, 39.493768))
sketch1.addConstraint(Sketcher.Constraint("DistanceX", 3, 3, -1, 1, 76.632599))
sketch1.addConstraint(Sketcher.Constraint("DistanceX", 2, 2, -1, 1, 76.632599))
sketch1.addConstraint(Sketcher.Constraint("DistanceX", 5, 2, -1, 1, 76.632599))
sketch1.addConstraint(Sketcher.Constraint("DistanceY", -1, 1, 7, 2, 10.213201))
sketch1.addConstraint(Sketcher.Constraint("DistanceX", 9, 2, -1, 1, 81.632599))
sketch1.addConstraint(Sketcher.Constraint("DistanceX", -1, 1, 48, 2, 31.463202))
sketch1.addConstraint(Sketcher.Constraint("DistanceX", -1, 1, 51, 2, 47.561201))
sketch1.addConstraint(Sketcher.Constraint("DistanceX", -1, 1, 52, 2, 43.238901))
sketch1.addConstraint(Sketcher.Constraint("DistanceY", -1, 1, 70, 2, 40.755299))
sketch1.addConstraint(Sketcher.Constraint("DistanceY", -1, 1, 72, 2, 45.5934))
sketch1.addConstraint(Sketcher.Constraint("DistanceY", -1, 1, 73, 2, 45.709401))
sketch1.addConstraint(Sketcher.Constraint("Distance", 33, 5.741449))
sketch1.addConstraint(Sketcher.Constraint("Distance", 51, 21.041451))
sketch1.addConstraint(Sketcher.Constraint("Distance", 56, 4.897419))
sketch1.addConstraint(Sketcher.Constraint("Distance", 57, 23.343351))
sketch1.addConstraint(Sketcher.Constraint("Distance", 58, 41.97595))
sketch1.addConstraint(Sketcher.Constraint("Distance", 60, 40.861669))
sketch1.addConstraint(Sketcher.Constraint("Distance", 69, 7.151448))
sketch1.addConstraint(Sketcher.Constraint("Distance", 70, 35.332591))
sketch1.addConstraint(Sketcher.Constraint("Distance", 86, 11.458011))
sketch1.addConstraint(Sketcher.Constraint("DistanceX", 0, 1, 0, 2, 5.303736))
sketch1.addConstraint(Sketcher.Constraint("DistanceX", 2, 2, 2, 1, 9.964953))
sketch1.addConstraint(Sketcher.Constraint("DistanceX", 11, 1, 11, 2, 9.964953))
sketch1.addConstraint(Sketcher.Constraint("DistanceX", 15, 2, 15, 1, 5.303736))
sketch1.addConstraint(Sketcher.Constraint("DistanceX", 20, 1, 20, 2, 5.642526))
sketch1.addConstraint(Sketcher.Constraint("DistanceX", 31, 1, 31, 2, 10.549064))
sketch1.addConstraint(Sketcher.Constraint("DistanceX", 41, 2, 41, 1, 10.549064))
sketch1.addConstraint(Sketcher.Constraint("DistanceX", 43, 1, 43, 2, 16.436916))
sketch1.addConstraint(Sketcher.Constraint("DistanceX", 49, 1, 49, 2, 9.229775))
sketch1.addConstraint(Sketcher.Constraint("DistanceX", 59, 1, 59, 2, 4.632545))
sketch1.addConstraint(Sketcher.Constraint("DistanceX", 67, 2, 67, 1, 5.122154))
sketch1.addConstraint(Sketcher.Constraint("DistanceX", 80, 1, 80, 2, 10.549066))
sketch1.addConstraint(Sketcher.Constraint("DistanceX", 89, 2, 89, 1, 5.907903))
sketch1.addConstraint(Sketcher.Constraint("DistanceY", 1, 1, 1, 2, 4.661217))
sketch1.addConstraint(Sketcher.Constraint("DistanceY", 4, 2, 4, 1, 19.439253))
sketch1.addConstraint(Sketcher.Constraint("DistanceY", 7, 2, 7, 1, 5.549067))
sketch1.addConstraint(Sketcher.Constraint("DistanceY", 13, 1, 13, 2, 10.423483))
sketch1.addConstraint(Sketcher.Constraint("DistanceY", 21, 1, 21, 2, 20.423483))
sketch1.addConstraint(Sketcher.Constraint("DistanceY", 25, 1, 25, 2, 44.956192))
sketch1.addConstraint(Sketcher.Constraint("DistanceY", 30, 2, 30, 1, 44.956192))
sketch1.addConstraint(Sketcher.Constraint("DistanceY", 36, 1, 36, 2, 5.909184))
sketch1.addConstraint(Sketcher.Constraint("DistanceY", 38, 1, 38, 2, 14.964954))
sketch1.addConstraint(Sketcher.Constraint("DistanceY", 40, 1, 40, 2, 5.151867))
sketch1.addConstraint(Sketcher.Constraint("DistanceY", 42, 2, 42, 1, 44.465542))
sketch1.addConstraint(Sketcher.Constraint("DistanceY", 50, 1, 50, 2, 24.576596))
sketch1.addConstraint(Sketcher.Constraint("DistanceY", 62, 2, 62, 1, 34.558996))
sketch1.addConstraint(Sketcher.Constraint("DistanceY", 66, 1, 66, 2, 40.274242))
sketch1.addConstraint(Sketcher.Constraint("DistanceY", 79, 2, 79, 1, 21.895444))
sketch1.addConstraint(Sketcher.Constraint("DistanceY", -1, 1, 3, 3, 40.201521))
sketch1.addConstraint(Sketcher.Constraint("DistanceX", -1, 1, 65, 3, 79.453858))
sketch1.addConstraint(Sketcher.Constraint("DistanceY", -1, 1, 71, 3, 40.530208))
sketch1.addConstraint(Sketcher.Constraint("DistanceX", -1, 1, 74, 3, 62.206728))
sketch1.addConstraint(Sketcher.Constraint("DistanceX", 82, 3, -1, 1, 6.295892))
sketch1.addConstraint(Sketcher.Constraint("DistanceY", -1, 1, 82, 3, 39.465541))
sketch1.addConstraint(Sketcher.Constraint("DistanceX", 84, 3, -1, 1, 8.591109))
sketch1.addConstraint(Sketcher.Constraint("DistanceX", 85, 3, -1, 1, 10.262459))
sketch1.addConstraint(Sketcher.Constraint("DistanceY", -1, 1, 87, 3, 36.881249))
sketch1.addConstraint(Sketcher.Constraint("DistanceY", -1, 1, 3, 2, 40.201521))
sketch1.addConstraint(Sketcher.Constraint("DistanceX", 34, 2, -1, 1, 31.095212))
sketch1.addConstraint(Sketcher.Constraint("DistanceY", -1, 1, 35, 2, 18.706191))
sketch1.addConstraint(Sketcher.Constraint("DistanceX", 37, 2, -1, 1, 31.095212))
sketch1.addConstraint(Sketcher.Constraint("DistanceX", -1, 1, 42, 2, 10.365071))
sketch1.addConstraint(Sketcher.Constraint("DistanceY", -1, 1, 60, 2, 40.380689))
sketch1.addConstraint(Sketcher.Constraint("DistanceX", -1, 1, 61, 2, 67.035638))
sketch1.addConstraint(Sketcher.Constraint("DistanceX", -1, 1, 63, 2, 72.035638))
sketch1.addConstraint(Sketcher.Constraint("DistanceY", -1, 1, 69, 2, 5.458529))
sketch1.addConstraint(Sketcher.Constraint("DistanceX", -1, 1, 71, 2, 65.876552))
sketch1.addConstraint(Sketcher.Constraint("DistanceY", -1, 1, 77, 2, 22.232771))
sketch1.addConstraint(Sketcher.Constraint("DistanceX", -1, 1, 80, 2, 6.19451))
sketch1.addConstraint(Sketcher.Constraint("DistanceX", 82, 2, -1, 1, 6.295891))
sketch1.addConstraint(Sketcher.Constraint("DistanceX", 84, 2, -1, 1, 13.495309))
sketch1.addConstraint(Sketcher.Constraint("DistanceY", -1, 1, 85, 1, 25.794161))
sketch1.addConstraint(Sketcher.Constraint("DistanceY", -1, 1, 87, 1, 36.926578))
sketch1.addConstraint(Sketcher.Constraint("DistanceX", 89, 2, -1, 1, 10.262459))
sketch1.addConstraint(Sketcher.Constraint("Distance", 34, 13.448286))
sketch1.addConstraint(Sketcher.Constraint("Distance", 35, 5.156736))
sketch1.addConstraint(Sketcher.Constraint("Distance", 37, 5.156736))
sketch1.addConstraint(Sketcher.Constraint("Distance", 52, 4.572764))
sketch1.addConstraint(Sketcher.Constraint("Distance", 53, 7.588222))
sketch1.addConstraint(Sketcher.Constraint("Distance", 55, 7.417285))
sketch1.addConstraint(Sketcher.Constraint("Distance", 61, 5.371198))
sketch1.addConstraint(Sketcher.Constraint("Distance", 72, 1.288073))
sketch1.addConstraint(Sketcher.Constraint("Distance", 73, 2.112295))
sketch1.addConstraint(Sketcher.Constraint("Distance", 75, 41.229576))
sketch1.addConstraint(Sketcher.Constraint("Distance", 77, 22.266373))
sketch1.addConstraint(Sketcher.Constraint("Distance", 81, 41.091838))
sketch1.addConstraint(Sketcher.Constraint("Distance", 88, 11.743923))
sketch1.addConstraint(Sketcher.Constraint("DistanceX", 12, 3, -1, 1, 71.667646))
sketch1.addConstraint(Sketcher.Constraint("DistanceY", -1, 1, 14, 3, 15.423483))
sketch1.addConstraint(Sketcher.Constraint("DistanceX", 17, 3, -1, 1, 71.971382))
sketch1.addConstraint(Sketcher.Constraint("DistanceX", -1, 1, 54, 3, 36.035864))
sketch1.addConstraint(Sketcher.Constraint("DistanceY", -1, 1, 85, 3, 25.752116))
sketch1.addConstraint(Sketcher.Constraint("DistanceX", 18, 2, -1, 1, 62.742412))
sketch1.addConstraint(Sketcher.Constraint("DistanceX", -1, 1, 54, 1, 31.273743))
sketch1.addConstraint(Sketcher.Constraint("DistanceX", -1, 1, 55, 2, 29.013135))
pad1 = doc.addObject("PartDesign::Pad", "Pad")
body.addObject(pad1)
pad1.Profile = sketch1
pad1.Length = 15
pad1.Midplane = True

doc.recompute()
